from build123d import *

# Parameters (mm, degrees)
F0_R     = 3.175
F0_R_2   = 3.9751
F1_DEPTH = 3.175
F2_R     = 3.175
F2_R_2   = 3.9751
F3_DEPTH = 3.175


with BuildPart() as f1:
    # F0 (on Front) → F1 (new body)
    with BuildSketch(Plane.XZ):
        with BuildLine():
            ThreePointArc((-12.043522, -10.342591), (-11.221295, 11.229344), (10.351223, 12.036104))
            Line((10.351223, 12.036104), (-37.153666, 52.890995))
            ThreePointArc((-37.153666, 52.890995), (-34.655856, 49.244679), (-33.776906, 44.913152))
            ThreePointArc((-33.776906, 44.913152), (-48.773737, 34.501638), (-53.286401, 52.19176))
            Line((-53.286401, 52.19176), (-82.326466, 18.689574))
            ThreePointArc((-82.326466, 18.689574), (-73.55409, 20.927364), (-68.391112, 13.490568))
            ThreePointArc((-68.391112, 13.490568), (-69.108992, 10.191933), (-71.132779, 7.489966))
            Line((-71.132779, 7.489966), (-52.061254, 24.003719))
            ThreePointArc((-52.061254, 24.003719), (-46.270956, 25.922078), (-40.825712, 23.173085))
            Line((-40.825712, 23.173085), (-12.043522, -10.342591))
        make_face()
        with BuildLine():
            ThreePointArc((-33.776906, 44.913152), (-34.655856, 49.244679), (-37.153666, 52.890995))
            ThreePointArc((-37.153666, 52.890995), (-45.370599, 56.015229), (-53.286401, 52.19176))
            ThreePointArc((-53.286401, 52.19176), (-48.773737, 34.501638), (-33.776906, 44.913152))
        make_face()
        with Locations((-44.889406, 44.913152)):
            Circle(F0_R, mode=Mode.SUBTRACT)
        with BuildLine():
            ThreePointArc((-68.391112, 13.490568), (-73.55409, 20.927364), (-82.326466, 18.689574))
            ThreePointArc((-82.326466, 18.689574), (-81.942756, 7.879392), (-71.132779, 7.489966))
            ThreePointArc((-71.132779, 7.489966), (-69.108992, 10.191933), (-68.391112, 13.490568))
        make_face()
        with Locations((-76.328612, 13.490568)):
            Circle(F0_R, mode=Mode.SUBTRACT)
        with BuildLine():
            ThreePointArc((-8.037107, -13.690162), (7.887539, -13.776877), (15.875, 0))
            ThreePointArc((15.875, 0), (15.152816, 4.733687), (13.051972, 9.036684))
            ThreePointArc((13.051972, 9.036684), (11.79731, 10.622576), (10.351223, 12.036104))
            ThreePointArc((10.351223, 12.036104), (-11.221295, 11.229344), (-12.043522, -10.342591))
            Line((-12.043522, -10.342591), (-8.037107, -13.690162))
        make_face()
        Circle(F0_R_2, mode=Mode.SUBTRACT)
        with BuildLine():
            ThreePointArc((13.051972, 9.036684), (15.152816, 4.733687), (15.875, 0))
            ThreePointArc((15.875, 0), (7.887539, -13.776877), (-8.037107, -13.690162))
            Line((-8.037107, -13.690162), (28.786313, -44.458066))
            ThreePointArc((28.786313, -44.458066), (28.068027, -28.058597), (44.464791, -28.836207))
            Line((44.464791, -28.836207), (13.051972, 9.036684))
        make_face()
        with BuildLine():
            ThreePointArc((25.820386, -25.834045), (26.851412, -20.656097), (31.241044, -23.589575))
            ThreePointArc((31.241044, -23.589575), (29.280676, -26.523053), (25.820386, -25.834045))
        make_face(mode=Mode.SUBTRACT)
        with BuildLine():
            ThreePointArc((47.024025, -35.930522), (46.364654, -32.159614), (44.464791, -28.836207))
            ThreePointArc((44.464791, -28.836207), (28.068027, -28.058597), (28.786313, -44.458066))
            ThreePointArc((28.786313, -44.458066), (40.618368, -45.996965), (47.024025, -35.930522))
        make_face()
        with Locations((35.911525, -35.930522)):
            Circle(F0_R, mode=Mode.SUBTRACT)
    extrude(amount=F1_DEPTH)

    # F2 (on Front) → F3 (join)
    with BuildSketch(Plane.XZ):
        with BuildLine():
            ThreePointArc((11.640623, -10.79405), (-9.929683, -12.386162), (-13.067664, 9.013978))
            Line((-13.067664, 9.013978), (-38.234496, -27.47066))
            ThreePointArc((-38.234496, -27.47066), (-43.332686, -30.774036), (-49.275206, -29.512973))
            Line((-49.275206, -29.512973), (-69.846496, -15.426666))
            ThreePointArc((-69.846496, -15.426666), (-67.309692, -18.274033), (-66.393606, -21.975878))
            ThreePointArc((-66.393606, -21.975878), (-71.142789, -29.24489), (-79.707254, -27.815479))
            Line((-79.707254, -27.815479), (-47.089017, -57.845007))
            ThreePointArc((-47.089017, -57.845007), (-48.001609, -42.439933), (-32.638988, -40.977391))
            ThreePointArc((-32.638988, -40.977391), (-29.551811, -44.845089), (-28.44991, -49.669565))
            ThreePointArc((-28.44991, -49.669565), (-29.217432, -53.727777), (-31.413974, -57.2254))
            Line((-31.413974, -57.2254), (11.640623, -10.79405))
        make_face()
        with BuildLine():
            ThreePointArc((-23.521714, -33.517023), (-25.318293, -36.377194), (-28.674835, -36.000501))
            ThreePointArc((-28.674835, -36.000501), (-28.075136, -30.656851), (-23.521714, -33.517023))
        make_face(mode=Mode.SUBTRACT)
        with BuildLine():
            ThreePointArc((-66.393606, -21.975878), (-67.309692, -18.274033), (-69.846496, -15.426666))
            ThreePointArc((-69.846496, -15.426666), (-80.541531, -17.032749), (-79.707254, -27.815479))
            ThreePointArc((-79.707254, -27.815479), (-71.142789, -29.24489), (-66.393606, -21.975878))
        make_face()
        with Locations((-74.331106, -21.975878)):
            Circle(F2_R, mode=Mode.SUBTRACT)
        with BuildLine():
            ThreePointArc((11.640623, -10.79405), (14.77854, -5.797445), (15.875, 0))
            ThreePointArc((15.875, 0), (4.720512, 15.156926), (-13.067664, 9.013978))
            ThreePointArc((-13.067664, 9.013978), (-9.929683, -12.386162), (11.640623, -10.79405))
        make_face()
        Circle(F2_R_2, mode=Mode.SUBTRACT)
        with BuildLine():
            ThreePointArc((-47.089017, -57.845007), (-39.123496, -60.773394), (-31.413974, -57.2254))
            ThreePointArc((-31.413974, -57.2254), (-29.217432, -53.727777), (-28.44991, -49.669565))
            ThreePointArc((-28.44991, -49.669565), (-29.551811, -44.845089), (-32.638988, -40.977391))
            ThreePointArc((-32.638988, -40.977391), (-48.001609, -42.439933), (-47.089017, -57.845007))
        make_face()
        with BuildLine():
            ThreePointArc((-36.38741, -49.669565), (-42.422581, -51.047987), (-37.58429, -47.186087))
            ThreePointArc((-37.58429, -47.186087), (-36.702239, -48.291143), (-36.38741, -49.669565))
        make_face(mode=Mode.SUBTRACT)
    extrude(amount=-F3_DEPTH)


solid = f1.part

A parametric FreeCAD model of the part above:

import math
import FreeCAD as App
import Part
import Sketcher

V = App.Vector
Q = App.Units.Quantity

doc = App.newDocument("Part")
body = doc.addObject("PartDesign::Body", "Body")

sketch1 = doc.addObject("Sketcher::SketchObject", "Sketch")
body.addObject(sketch1)
sketch1.AttachmentSupport = (doc.XZ_Plane, [""])
sketch1.MapMode = "FlatFace"
sketch1.addGeometry(Part.LineSegment(V(-40.825712, 23.173085, 0), V(-12.043522, -10.342591, 0)), False)
sketch1.addGeometry(Part.LineSegment(V(-12.043522, -10.342591, 0), V(-8.037107, -13.690162, 0)), False)
sketch1.addGeometry(Part.LineSegment(V(-8.037107, -13.690162, 0), V(28.786313, -44.458066, 0)), False)
sketch1.addGeometry(Part.ArcOfCircle(Part.Circle(V(35.911525, -35.930521, 0), V(0, 0, 1), 11.1125), math.radians(-129.88053), math.radians(-0.000003)), False)
sketch1.addGeometry(Part.ArcOfCircle(Part.Circle(V(35.91152, -35.930523, 0), V(0, 0, 1), 11.112505), math.radians(0.000007), math.radians(39.673237)), False)
sketch1.addGeometry(Part.LineSegment(V(44.464791, -28.836207, 0), V(13.051972, 9.036684, 0)), False)
sketch1.addGeometry(Part.ArcOfCircle(Part.Circle(V(0.000059, 0.000051, 0), V(0, 0, 1), 15.874922), math.radians(34.697211), math.radians(49.304036)), False)
sketch1.addGeometry(Part.LineSegment(V(10.351223, 12.036104, 0), V(-37.153666, 52.890995, 0)), False)
sketch1.addGeometry(Part.ArcOfCircle(Part.Circle(V(-44.889406, 44.913153, 0), V(0, 0, 1), 11.1125), math.radians(45.882697), math.radians(139.080895)), False)
sketch1.addGeometry(Part.LineSegment(V(-53.286401, 52.19176, 0), V(-82.326466, 18.689574, 0)), False)
sketch1.addGeometry(Part.ArcOfCircle(Part.Circle(V(-76.328612, 13.490568, 0), V(0, 0, 1), 7.9375), math.radians(139.080895), math.radians(310.888806)), False)
sketch1.addGeometry(Part.LineSegment(V(-71.132779, 7.489966, 0), V(-52.061254, 24.003719, 0)), False)
sketch1.addGeometry(Part.ArcOfCircle(Part.Circle(V(-46.857108, 17.993515, 0), V(0, 0, 1), 7.9502), math.radians(40.654929), math.radians(130.888799)), False)
sketch1.addGeometry(Part.Circle(V(35.911525, -35.930522, 0), V(0, 0, 1), 3.175), False)
sketch1.addGeometry(Part.ArcOfCircle(Part.Circle(V(28.066044, -23.589575, 0), V(0, 0, 1), 3.175), math.radians(-135.015154), math.radians(-0.000005)), False)
sketch1.addGeometry(Part.ArcOfCircle(Part.Circle(V(28.066044, -23.589575, 0), V(0, 0, 1), 3.175), math.radians(0.000002), math.radians(224.984839)), False)
sketch1.addGeometry(Part.Circle(V(0, 0, 0), V(0, 0, 1), 3.9751), False)
sketch1.addGeometry(Part.Circle(V(-76.328612, 13.490568, 0), V(0, 0, 1), 3.175), False)
sketch1.addGeometry(Part.Circle(V(-44.889406, 44.913152, 0), V(0, 0, 1), 3.175), False)
sketch1.addConstraint(Sketcher.Constraint("Coincident", 0, 2, 1, 1))
sketch1.addConstraint(Sketcher.Constraint("Coincident", 1, 2, 2, 1))
sketch1.addConstraint(Sketcher.Constraint("Coincident", 2, 2, 3, 1))
sketch1.addConstraint(Sketcher.Constraint("Coincident", 3, 2, 4, 1))
sketch1.addConstraint(Sketcher.Constraint("Coincident", 4, 2, 5, 1))
sketch1.addConstraint(Sketcher.Constraint("Coincident", 5, 2, 6, 1))
sketch1.addConstraint(Sketcher.Constraint("Coincident", 6, 2, 7, 1))
sketch1.addConstraint(Sketcher.Constraint("Coincident", 7, 2, 8, 1))
sketch1.addConstraint(Sketcher.Constraint("Coincident", 8, 2, 9, 1))
sketch1.addConstraint(Sketcher.Constraint("Coincident", 9, 2, 10, 1))
sketch1.addConstraint(Sketcher.Constraint("Coincident", 10, 2, 11, 1))
sketch1.addConstraint(Sketcher.Constraint("Coincident", 11, 2, 12, 2))
sketch1.addConstraint(Sketcher.Constraint("Coincident", 12, 1, 0, 1))
sketch1.addConstraint(Sketcher.Constraint("Coincident", 14, 1, 15, 2))
sketch1.addConstraint(Sketcher.Constraint("Coincident", 15, 1, 14, 2))
sketch1.addConstraint(Sketcher.Constraint("Coincident", 16, 3, -1, 1))
sketch1.addConstraint(Sketcher.Constraint("Coincident", 4, 3, 3, 3))
sketch1.addConstraint(Sketcher.Constraint("Coincident", 13, 3, 3, 3))
sketch1.addConstraint(Sketcher.Constraint("Coincident", 17, 3, 10, 3))
sketch1.addConstraint(Sketcher.Constraint("Coincident", 18, 3, 8, 3))
sketch1.addConstraint(Sketcher.Constraint("Diameter", 13, Q("0.25 in")))
sketch1.addConstraint(Sketcher.Constraint("Diameter", 17, Q("0.25 in")))
sketch1.addConstraint(Sketcher.Constraint("Diameter", 18, Q("0.25 in")))
sketch1.addConstraint(Sketcher.Constraint("Diameter", 16, Q("0.313 in")))
sketch1.addConstraint(Sketcher.Constraint("Radius", 3, Q("0.4375 in")))
sketch1.addConstraint(Sketcher.Constraint("Radius", 8, Q("0.4375 in")))
sketch1.addConstraint(Sketcher.Constraint("Radius", 10, Q("0.3125 in")))
sketch1.addConstraint(Sketcher.Constraint("Radius", 12, Q("0.313 in")))
sketch1.addConstraint(Sketcher.Constraint("Radius", 14, Q("0.125 in")))
sketch1.addConstraint(Sketcher.Constraint("Radius", 15, Q("0.125 in")))
sketch1.addConstraint(Sketcher.Constraint("Distance", 0, Q("1.7392999 in")))
sketch1.addConstraint(Sketcher.Constraint("Radius", 6, Q("15.874922 mm")))
sketch1.addConstraint(Sketcher.Constraint("DistanceX", 9, 2, 18, 3, Q("1.4739 in")))
sketch1.addConstraint(Sketcher.Constraint("DistanceX", 8, 2, -1, 1, Q("53.286401 mm")))
sketch1.addConstraint(Sketcher.Constraint("DistanceY", 6, 3, 8, 3, Q("44.913102 mm")))
sketch1.addConstraint(Sketcher.Constraint("DistanceX", 12, 3, 8, 3, Q("1.967702 mm")))
sketch1.addConstraint(Sketcher.Constraint("DistanceY", 10, 2, 17, 3, Q("6.000602 mm")))
sketch1.addConstraint(Sketcher.Constraint("Distance", 1, Q("5.22088 mm")))
sketch1.addConstraint(Sketcher.Constraint("Distance", 2, Q("47.985708 mm")))
sketch1.addConstraint(Sketcher.Constraint("Distance", 5, Q("49.204889 mm")))
sketch1.addConstraint(Sketcher.Constraint("Distance", 9, Q("44.336462 mm")))
sketch1.addConstraint(Sketcher.Constraint("DistanceY", 3, 3, -1, 1, Q("35.930521 mm")))
sketch1.addConstraint(Sketcher.Constraint("DistanceX", -1, 1, 4, 3, Q("35.91152 mm")))
sketch1.addConstraint(Sketcher.Constraint("DistanceY", -1, 1, 10, 3, Q("13.490568 mm")))
sketch1.addConstraint(Sketcher.Constraint("DistanceX", 12, 3, -1, 1, Q("46.857108 mm")))
sketch1.addConstraint(Sketcher.Constraint("DistanceY", -1, 1, 18, 3, Q("44.913152 mm")))
sketch1.addConstraint(Sketcher.Constraint("DistanceY", 0, 2, -1, 1, Q("10.342591 mm")))
sketch1.addConstraint(Sketcher.Constraint("DistanceX", -1, 1, 4, 2, Q("44.464791 mm")))
sketch1.addConstraint(Sketcher.Constraint("DistanceX", -1, 1, 5, 2, Q("13.051972 mm")))
sketch1.addConstraint(Sketcher.Constraint("DistanceY", -1, 1, 11, 2, Q("24.003719 mm")))
sketch1.addConstraint(Sketcher.Constraint("DistanceX", 12, 1, -1, 1, Q("40.825712 mm")))
sketch1.addConstraint(Sketcher.Constraint("DistanceY", 4, 3, 12, 3, Q("53.924038 mm")))
sketch1.addConstraint(Sketcher.Constraint("DistanceY", 4, 3, 14, 3, Q("12.340949 mm")))
sketch1.addConstraint(Sketcher.Constraint("DistanceX", 14, 3, 3, 3, Q("7.845481 mm")))
sketch1.addConstraint(Sketcher.Constraint("DistanceY", 1, 2, 0, 2, Q("3.347571 mm")))
sketch1.addConstraint(Sketcher.Constraint("DistanceX", 6, 2, 5, 2, Q("2.700749 mm")))
sketch1.addConstraint(Sketcher.Constraint("DistanceX", 8, 3, 7, 2, Q("7.73574 mm")))
sketch1.addConstraint(Sketcher.Constraint("DistanceX", 14, 1, 15, 3, Q("2.245658 mm")))
sketch1.addConstraint(Sketcher.Constraint("DistanceY", 14, 1, 15, 1, Q("2.24447 mm")))
sketch1.addConstraint(Sketcher.Constraint("DistanceY", 3, 2, -1, 1, Q("35.930522 mm")))
pad1 = doc.addObject("PartDesign::Pad", "Pad")
body.addObject(pad1)
pad1.Profile = sketch1
pad1.Length = Q("0.125 in")

sketch2 = doc.addObject("Sketcher::SketchObject", "Sketch001")
body.addObject(sketch2)
sketch2.AttachmentSupport = (doc.XZ_Plane, [""])
sketch2.MapMode = "FlatFace"
sketch2.addGeometry(Part.LineSegment(V(-31.4, -57.2, 0), V(11.6, -10.8, 0)), False)
sketch2.addGeometry(Part.ArcOfCircle(Part.Circle(V(0, 0, 0), V(0, 0, 1), 15.9), math.radians(-43), math.radians(0)), False)
sketch2.addGeometry(Part.ArcOfCircle(Part.Circle(V(0, 0, 0), V(0, 0, 1), 15.9), math.radians(0), math.radians(145)), False)
sketch2.addGeometry(Part.LineSegment(V(-13.1, 9, 0), V(-38.2, -27.5, 0)), False)
sketch2.addGeometry(Part.ArcOfCircle(Part.Circle(V(-44.8, -23, 0), V(0, 0, 1), 8), math.radians(-124), math.radians(-35)), False)
sketch2.addGeometry(Part.LineSegment(V(-49.3, -29.5, 0), V(-69.8, -15.4, 0)), False)
sketch2.addGeometry(Part.ArcOfCircle(Part.Circle(V(-74.3, -22, 0), V(0, 0, 1), 7.9), math.radians(56), math.radians(227)), False)
sketch2.addGeometry(Part.LineSegment(V(-79.7, -27.8, 0), V(-47.1, -57.8, 0)), False)
sketch2.addGeometry(Part.ArcOfCircle(Part.Circle(V(-39.6, -49.7, 0), V(0, 0, 1), 11.1), math.radians(-133), math.radians(-43)), False)
sketch2.addGeometry(Part.ArcOfCircle(Part.Circle(V(-39.6, -49.7, 0), V(0, 0, 1), 3.2), math.radians(0), math.radians(51)), False)
sketch2.addGeometry(Part.ArcOfCircle(Part.Circle(V(-39.6, -49.7, 0), V(0, 0, 1), 3.2), math.radians(51), math.radians(360)), False)
sketch2.addGeometry(Part.ArcOfCircle(Part.Circle(V(-26.7, -33.5, 0), V(0, 0, 1), 3.2), math.radians(0), math.radians(231)), False)
sketch2.addGeometry(Part.ArcOfCircle(Part.Circle(V(-26.7, -33.5, 0), V(0, 0, 1), 3.2), math.radians(-129), math.radians(0)), False)
sketch2.addGeometry(Part.Circle(V(-74.3, -22, 0), V(0, 0, 1), 3.2), False)
sketch2.addGeometry(Part.Circle(V(0, 0, 0), V(0, 0, 1), 4), False)
sketch2.addConstraint(Sketcher.Constraint("Tangent", 0, 2, 1, 1))
sketch2.addConstraint(Sketcher.Constraint("Tangent", 1, 2, 2, 1))
sketch2.addConstraint(Sketcher.Constraint("Tangent", 2, 2, 3, 1))
sketch2.addConstraint(Sketcher.Constraint("Tangent", 3, 2, 4, 2))
sketch2.addConstraint(Sketcher.Constraint("Coincident", 4, 1, 5, 1))
sketch2.addConstraint(Sketcher.Constraint("Tangent", 5, 2, 6, 1))
sketch2.addConstraint(Sketcher.Constraint("Tangent", 6, 2, 7, 1))
sketch2.addConstraint(Sketcher.Constraint("Tangent", 7, 2, 8, 1))
sketch2.addConstraint(Sketcher.Constraint("Tangent", 8, 2, 0, 1))
sketch2.addConstraint(Sketcher.Constraint("Tangent", 9, 1, 10, 2))
sketch2.addConstraint(Sketcher.Constraint("Coincident", 10, 1, 9, 2))
sketch2.addConstraint(Sketcher.Constraint("Tangent", 11, 1, 12, 2))
sketch2.addConstraint(Sketcher.Constraint("Coincident", 12, 1, 11, 2))
sketch2.addConstraint(Sketcher.Constraint("Coincident", 1, 3, -1, 1))
sketch2.addConstraint(Sketcher.Constraint("Coincident", 14, 3, -1, 1))
sketch2.addConstraint(Sketcher.Constraint("Coincident", 9, 3, 8, 3))
sketch2.addConstraint(Sketcher.Constraint("Coincident", 13, 3, 6, 3))
sketch2.addConstraint(Sketcher.Constraint("Equal", 10, 11))
sketch2.addConstraint(Sketcher.Constraint("Equal", 12, 13))
sketch2.addConstraint(Sketcher.Constraint("PointOnObject", 1, 2, -1))
sketch2.addConstraint(Sketcher.Constraint("Horizontal", 10, 3, 9, 1))
sketch2.addConstraint(Sketcher.Constraint("Horizontal", 12, 3, 11, 1))
sketch2.addConstraint(Sketcher.Constraint("Diameter", 13, Q("0.25 in")))
sketch2.addConstraint(Sketcher.Constraint("Diameter", 14, Q("0.313 in")))
sketch2.addConstraint(Sketcher.Constraint("Radius", 1, Q("0.6250001 in")))
sketch2.addConstraint(Sketcher.Constraint("Radius", 2, Q("0.625 in")))
sketch2.addConstraint(Sketcher.Constraint("Radius", 4, Q("0.313 in")))
sketch2.addConstraint(Sketcher.Constraint("Radius", 6, Q("0.3125 in")))
sketch2.addConstraint(Sketcher.Constraint("Radius", 8, Q("0.4375 in")))
sketch2.addConstraint(Sketcher.Constraint("DistanceY", 6, 2, 4, 3, Q("0.1912999 in")))
sketch2.addConstraint(Sketcher.Constraint("DistanceY", 8, 2, -1, 1, Q("57.2254 mm")))
sketch2.addConstraint(Sketcher.Constraint("DistanceY", 12, 1, -1, 1, Q("36.000501 mm")))
sketch2.addConstraint(Sketcher.Constraint("DistanceX", 6, 3, 9, 3, Q("34.768699 mm")))
sketch2.addConstraint(Sketcher.Constraint("DistanceY", 3, 2, 4, 3, Q("4.514199 mm")))
sketch2.addConstraint(Sketcher.Constraint("DistanceX", 4, 1, 9, 3, Q("9.712799 mm")))
sketch2.addConstraint(Sketcher.Constraint("DistanceX", 5, 2, 3, 2, Q("31.612 mm")))
sketch2.addConstraint(Sketcher.Constraint("DistanceY", 6, 2, 6, 3, Q("5.839601 mm")))
sketch2.addConstraint(Sketcher.Constraint("DistanceX", 10, 1, -1, 1, Q("37.58429 mm")))
sketch2.addConstraint(Sketcher.Constraint("DistanceY", 9, 3, 11, 3, Q("16.152542 mm")))
sketch2.addConstraint(Sketcher.Constraint("DistanceX", 4, 3, 11, 3, Q("18.082068 mm")))
pad2 = doc.addObject("PartDesign::Pad", "Pad001")
body.addObject(pad2)
pad2.Profile = sketch2
pad2.Length = Q("0.125 in")
pad2.Reversed = True

doc.recompute()
